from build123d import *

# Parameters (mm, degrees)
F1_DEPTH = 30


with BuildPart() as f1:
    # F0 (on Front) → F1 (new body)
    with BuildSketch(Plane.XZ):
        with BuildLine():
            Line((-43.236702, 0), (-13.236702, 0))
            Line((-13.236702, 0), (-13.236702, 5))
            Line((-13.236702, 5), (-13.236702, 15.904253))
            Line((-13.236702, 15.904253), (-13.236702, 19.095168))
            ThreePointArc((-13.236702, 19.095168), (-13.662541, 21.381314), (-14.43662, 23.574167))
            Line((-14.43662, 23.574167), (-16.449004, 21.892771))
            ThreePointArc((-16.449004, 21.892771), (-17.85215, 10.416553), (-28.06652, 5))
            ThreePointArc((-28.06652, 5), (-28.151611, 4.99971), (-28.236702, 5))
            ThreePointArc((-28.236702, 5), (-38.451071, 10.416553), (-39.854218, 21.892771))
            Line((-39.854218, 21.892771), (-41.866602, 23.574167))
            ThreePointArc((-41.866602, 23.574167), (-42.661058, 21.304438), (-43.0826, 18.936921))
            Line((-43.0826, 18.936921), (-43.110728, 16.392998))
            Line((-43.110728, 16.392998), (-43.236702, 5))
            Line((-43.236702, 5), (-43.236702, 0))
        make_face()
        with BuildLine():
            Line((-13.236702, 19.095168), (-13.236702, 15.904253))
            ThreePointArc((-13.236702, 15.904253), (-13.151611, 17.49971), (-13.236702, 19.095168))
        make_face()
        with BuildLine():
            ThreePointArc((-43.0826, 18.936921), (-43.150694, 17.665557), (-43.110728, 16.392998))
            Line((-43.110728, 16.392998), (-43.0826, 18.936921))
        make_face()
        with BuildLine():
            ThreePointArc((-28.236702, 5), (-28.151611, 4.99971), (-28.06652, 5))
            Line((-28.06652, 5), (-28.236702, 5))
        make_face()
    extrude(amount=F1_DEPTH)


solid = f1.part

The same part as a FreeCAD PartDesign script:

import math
import FreeCAD as App
import Part
import Sketcher

doc = App.newDocument("Part")
body = doc.addObject("PartDesign::Body", "Body")

sketch1 = body.newObject("Sketcher::SketchObject", "Sketch")
sketch1.AttachmentSupport = (doc.getObject("XZ_Plane"), [""])
sketch1.MapMode = "FlatFace"
sketch1.addGeometry([
    Part.LineSegment(App.Vector(-43.236702, 0, 0), App.Vector(-13.236702, 0, 0)),
    Part.LineSegment(App.Vector(-13.236702, 0, 0), App.Vector(-13.236702, 15.904253, 0)),
    Part.ArcOfCircle(Part.Circle(App.Vector(-28.151582, 17.49971, 0), App.Vector(0, 0, 1), 14.999971), math.radians(-6.10576), math.radians(6.10576)),
    Part.ArcOfCircle(Part.Circle(App.Vector(-28.151617, 17.499709, 0), App.Vector(0, 0, 1), 15.000006), math.radians(6.10575), math.radians(23.888851)),
    Part.LineSegment(App.Vector(-14.43662, 23.574167, 0), App.Vector(-16.449004, 21.892771, 0)),
    Part.ArcOfCircle(Part.Circle(App.Vector(-28.15161, 17.499709, 0), App.Vector(0, 0, 1), 12.499999), math.radians(-89.609975), math.radians(20.575722)),
    Part.LineSegment(App.Vector(-28.06652, 5, 0), App.Vector(-28.236702, 5, 0)),
    Part.ArcOfCircle(Part.Circle(App.Vector(-28.151611, 17.49971, 0), App.Vector(0, 0, 1), 12.5), math.radians(159.424285), math.radians(269.609968)),
    Part.LineSegment(App.Vector(-39.854218, 21.892771, 0), App.Vector(-41.866602, 23.574167, 0)),
    Part.ArcOfCircle(Part.Circle(App.Vector(-28.151612, 17.49971, 0), App.Vector(0, 0, 1), 14.999999), math.radians(156.11114), math.radians(174.501824)),
    Part.ArcOfCircle(Part.Circle(App.Vector(-28.151571, 17.499713, 0), App.Vector(0, 0, 1), 15.00004), math.radians(174.501848), math.radians(184.231172)),
    Part.LineSegment(App.Vector(-43.110728, 16.392998, 0), App.Vector(-43.236702, 5, 0)),
    Part.LineSegment(App.Vector(-43.236702, 5, 0), App.Vector(-43.236702, 0, 0)),
], False)
sketch1.addConstraint([
    Sketcher.Constraint("Coincident", 0, 2, 1, 1),
    Sketcher.Constraint("Coincident", 1, 2, 2, 1),
    Sketcher.Constraint("Tangent", 2, 2, 3, 1),
    Sketcher.Constraint("Coincident", 3, 2, 4, 1),
    Sketcher.Constraint("Coincident", 4, 2, 5, 2),
    Sketcher.Constraint("Coincident", 5, 1, 6, 1),
    Sketcher.Constraint("Coincident", 6, 2, 7, 2),
    Sketcher.Constraint("Coincident", 7, 1, 8, 1),
    Sketcher.Constraint("Coincident", 8, 2, 9, 1),
    Sketcher.Constraint("Tangent", 9, 2, 10, 1),
    Sketcher.Constraint("Coincident", 10, 2, 11, 1),
    Sketcher.Constraint("Coincident", 11, 2, 12, 1),
    Sketcher.Constraint("Coincident", 12, 2, 0, 1),
    Sketcher.Constraint("Horizontal", 0),
    Sketcher.Constraint("Vertical", 1),
    Sketcher.Constraint("Horizontal", 6),
    Sketcher.Constraint("Vertical", 12),
    Sketcher.Constraint("Coincident", 5, 3, 3, 3),
    Sketcher.Constraint("Coincident", 7, 3, 3, 3),
    Sketcher.Constraint("Coincident", 9, 3, 3, 3),
    Sketcher.Constraint("Equal", 5, 7),
    Sketcher.Constraint("PointOnObject", 0, 2, -1),
    Sketcher.Constraint("Horizontal", 2, 3, 3, 3),
    Sketcher.Constraint("Horizontal", 4, 2, 7, 1),
    Sketcher.Constraint("Horizontal", 3, 2, 8, 2),
    Sketcher.Constraint("Horizontal", 6, 2, 11, 2),
    Sketcher.Constraint("Vertical", 1, 2, 2, 2),
    Sketcher.Constraint("Equal", 4, 8),
    Sketcher.Constraint("Radius", 9, 14.999999),
    Sketcher.Constraint("Radius", 5, 12.499999),
    Sketcher.Constraint("DistanceX", 0, 1, 0, 2, 30.0),
    Sketcher.Constraint("DistanceY", 12, 2, 12, 1, 5.0),
    Sketcher.Constraint("DistanceX", 11, 2, 6, 2, 15.0),
    Sketcher.Constraint("Radius", 10, 15.00004),
    Sketcher.Constraint("DistanceY", -1, 1, 10, 2, 16.392998),
    Sketcher.Constraint("DistanceY", 2, 2, 3, 2, 4.478999),
    Sketcher.Constraint("DistanceX", 9, 2, 8, 2, 1.215998),
    Sketcher.Constraint("DistanceX", 0, 2, -1, 1, 13.236702),
    Sketcher.Constraint("DistanceX", 9, 2, -1, 1, 43.0826),
    Sketcher.Constraint("DistanceX", 4, 2, 2, 2, 3.212302),
])
pad1 = body.newObject("PartDesign::Pad", "Pad")
pad1.Profile = sketch1
pad1.Length = 30

doc.recompute()
